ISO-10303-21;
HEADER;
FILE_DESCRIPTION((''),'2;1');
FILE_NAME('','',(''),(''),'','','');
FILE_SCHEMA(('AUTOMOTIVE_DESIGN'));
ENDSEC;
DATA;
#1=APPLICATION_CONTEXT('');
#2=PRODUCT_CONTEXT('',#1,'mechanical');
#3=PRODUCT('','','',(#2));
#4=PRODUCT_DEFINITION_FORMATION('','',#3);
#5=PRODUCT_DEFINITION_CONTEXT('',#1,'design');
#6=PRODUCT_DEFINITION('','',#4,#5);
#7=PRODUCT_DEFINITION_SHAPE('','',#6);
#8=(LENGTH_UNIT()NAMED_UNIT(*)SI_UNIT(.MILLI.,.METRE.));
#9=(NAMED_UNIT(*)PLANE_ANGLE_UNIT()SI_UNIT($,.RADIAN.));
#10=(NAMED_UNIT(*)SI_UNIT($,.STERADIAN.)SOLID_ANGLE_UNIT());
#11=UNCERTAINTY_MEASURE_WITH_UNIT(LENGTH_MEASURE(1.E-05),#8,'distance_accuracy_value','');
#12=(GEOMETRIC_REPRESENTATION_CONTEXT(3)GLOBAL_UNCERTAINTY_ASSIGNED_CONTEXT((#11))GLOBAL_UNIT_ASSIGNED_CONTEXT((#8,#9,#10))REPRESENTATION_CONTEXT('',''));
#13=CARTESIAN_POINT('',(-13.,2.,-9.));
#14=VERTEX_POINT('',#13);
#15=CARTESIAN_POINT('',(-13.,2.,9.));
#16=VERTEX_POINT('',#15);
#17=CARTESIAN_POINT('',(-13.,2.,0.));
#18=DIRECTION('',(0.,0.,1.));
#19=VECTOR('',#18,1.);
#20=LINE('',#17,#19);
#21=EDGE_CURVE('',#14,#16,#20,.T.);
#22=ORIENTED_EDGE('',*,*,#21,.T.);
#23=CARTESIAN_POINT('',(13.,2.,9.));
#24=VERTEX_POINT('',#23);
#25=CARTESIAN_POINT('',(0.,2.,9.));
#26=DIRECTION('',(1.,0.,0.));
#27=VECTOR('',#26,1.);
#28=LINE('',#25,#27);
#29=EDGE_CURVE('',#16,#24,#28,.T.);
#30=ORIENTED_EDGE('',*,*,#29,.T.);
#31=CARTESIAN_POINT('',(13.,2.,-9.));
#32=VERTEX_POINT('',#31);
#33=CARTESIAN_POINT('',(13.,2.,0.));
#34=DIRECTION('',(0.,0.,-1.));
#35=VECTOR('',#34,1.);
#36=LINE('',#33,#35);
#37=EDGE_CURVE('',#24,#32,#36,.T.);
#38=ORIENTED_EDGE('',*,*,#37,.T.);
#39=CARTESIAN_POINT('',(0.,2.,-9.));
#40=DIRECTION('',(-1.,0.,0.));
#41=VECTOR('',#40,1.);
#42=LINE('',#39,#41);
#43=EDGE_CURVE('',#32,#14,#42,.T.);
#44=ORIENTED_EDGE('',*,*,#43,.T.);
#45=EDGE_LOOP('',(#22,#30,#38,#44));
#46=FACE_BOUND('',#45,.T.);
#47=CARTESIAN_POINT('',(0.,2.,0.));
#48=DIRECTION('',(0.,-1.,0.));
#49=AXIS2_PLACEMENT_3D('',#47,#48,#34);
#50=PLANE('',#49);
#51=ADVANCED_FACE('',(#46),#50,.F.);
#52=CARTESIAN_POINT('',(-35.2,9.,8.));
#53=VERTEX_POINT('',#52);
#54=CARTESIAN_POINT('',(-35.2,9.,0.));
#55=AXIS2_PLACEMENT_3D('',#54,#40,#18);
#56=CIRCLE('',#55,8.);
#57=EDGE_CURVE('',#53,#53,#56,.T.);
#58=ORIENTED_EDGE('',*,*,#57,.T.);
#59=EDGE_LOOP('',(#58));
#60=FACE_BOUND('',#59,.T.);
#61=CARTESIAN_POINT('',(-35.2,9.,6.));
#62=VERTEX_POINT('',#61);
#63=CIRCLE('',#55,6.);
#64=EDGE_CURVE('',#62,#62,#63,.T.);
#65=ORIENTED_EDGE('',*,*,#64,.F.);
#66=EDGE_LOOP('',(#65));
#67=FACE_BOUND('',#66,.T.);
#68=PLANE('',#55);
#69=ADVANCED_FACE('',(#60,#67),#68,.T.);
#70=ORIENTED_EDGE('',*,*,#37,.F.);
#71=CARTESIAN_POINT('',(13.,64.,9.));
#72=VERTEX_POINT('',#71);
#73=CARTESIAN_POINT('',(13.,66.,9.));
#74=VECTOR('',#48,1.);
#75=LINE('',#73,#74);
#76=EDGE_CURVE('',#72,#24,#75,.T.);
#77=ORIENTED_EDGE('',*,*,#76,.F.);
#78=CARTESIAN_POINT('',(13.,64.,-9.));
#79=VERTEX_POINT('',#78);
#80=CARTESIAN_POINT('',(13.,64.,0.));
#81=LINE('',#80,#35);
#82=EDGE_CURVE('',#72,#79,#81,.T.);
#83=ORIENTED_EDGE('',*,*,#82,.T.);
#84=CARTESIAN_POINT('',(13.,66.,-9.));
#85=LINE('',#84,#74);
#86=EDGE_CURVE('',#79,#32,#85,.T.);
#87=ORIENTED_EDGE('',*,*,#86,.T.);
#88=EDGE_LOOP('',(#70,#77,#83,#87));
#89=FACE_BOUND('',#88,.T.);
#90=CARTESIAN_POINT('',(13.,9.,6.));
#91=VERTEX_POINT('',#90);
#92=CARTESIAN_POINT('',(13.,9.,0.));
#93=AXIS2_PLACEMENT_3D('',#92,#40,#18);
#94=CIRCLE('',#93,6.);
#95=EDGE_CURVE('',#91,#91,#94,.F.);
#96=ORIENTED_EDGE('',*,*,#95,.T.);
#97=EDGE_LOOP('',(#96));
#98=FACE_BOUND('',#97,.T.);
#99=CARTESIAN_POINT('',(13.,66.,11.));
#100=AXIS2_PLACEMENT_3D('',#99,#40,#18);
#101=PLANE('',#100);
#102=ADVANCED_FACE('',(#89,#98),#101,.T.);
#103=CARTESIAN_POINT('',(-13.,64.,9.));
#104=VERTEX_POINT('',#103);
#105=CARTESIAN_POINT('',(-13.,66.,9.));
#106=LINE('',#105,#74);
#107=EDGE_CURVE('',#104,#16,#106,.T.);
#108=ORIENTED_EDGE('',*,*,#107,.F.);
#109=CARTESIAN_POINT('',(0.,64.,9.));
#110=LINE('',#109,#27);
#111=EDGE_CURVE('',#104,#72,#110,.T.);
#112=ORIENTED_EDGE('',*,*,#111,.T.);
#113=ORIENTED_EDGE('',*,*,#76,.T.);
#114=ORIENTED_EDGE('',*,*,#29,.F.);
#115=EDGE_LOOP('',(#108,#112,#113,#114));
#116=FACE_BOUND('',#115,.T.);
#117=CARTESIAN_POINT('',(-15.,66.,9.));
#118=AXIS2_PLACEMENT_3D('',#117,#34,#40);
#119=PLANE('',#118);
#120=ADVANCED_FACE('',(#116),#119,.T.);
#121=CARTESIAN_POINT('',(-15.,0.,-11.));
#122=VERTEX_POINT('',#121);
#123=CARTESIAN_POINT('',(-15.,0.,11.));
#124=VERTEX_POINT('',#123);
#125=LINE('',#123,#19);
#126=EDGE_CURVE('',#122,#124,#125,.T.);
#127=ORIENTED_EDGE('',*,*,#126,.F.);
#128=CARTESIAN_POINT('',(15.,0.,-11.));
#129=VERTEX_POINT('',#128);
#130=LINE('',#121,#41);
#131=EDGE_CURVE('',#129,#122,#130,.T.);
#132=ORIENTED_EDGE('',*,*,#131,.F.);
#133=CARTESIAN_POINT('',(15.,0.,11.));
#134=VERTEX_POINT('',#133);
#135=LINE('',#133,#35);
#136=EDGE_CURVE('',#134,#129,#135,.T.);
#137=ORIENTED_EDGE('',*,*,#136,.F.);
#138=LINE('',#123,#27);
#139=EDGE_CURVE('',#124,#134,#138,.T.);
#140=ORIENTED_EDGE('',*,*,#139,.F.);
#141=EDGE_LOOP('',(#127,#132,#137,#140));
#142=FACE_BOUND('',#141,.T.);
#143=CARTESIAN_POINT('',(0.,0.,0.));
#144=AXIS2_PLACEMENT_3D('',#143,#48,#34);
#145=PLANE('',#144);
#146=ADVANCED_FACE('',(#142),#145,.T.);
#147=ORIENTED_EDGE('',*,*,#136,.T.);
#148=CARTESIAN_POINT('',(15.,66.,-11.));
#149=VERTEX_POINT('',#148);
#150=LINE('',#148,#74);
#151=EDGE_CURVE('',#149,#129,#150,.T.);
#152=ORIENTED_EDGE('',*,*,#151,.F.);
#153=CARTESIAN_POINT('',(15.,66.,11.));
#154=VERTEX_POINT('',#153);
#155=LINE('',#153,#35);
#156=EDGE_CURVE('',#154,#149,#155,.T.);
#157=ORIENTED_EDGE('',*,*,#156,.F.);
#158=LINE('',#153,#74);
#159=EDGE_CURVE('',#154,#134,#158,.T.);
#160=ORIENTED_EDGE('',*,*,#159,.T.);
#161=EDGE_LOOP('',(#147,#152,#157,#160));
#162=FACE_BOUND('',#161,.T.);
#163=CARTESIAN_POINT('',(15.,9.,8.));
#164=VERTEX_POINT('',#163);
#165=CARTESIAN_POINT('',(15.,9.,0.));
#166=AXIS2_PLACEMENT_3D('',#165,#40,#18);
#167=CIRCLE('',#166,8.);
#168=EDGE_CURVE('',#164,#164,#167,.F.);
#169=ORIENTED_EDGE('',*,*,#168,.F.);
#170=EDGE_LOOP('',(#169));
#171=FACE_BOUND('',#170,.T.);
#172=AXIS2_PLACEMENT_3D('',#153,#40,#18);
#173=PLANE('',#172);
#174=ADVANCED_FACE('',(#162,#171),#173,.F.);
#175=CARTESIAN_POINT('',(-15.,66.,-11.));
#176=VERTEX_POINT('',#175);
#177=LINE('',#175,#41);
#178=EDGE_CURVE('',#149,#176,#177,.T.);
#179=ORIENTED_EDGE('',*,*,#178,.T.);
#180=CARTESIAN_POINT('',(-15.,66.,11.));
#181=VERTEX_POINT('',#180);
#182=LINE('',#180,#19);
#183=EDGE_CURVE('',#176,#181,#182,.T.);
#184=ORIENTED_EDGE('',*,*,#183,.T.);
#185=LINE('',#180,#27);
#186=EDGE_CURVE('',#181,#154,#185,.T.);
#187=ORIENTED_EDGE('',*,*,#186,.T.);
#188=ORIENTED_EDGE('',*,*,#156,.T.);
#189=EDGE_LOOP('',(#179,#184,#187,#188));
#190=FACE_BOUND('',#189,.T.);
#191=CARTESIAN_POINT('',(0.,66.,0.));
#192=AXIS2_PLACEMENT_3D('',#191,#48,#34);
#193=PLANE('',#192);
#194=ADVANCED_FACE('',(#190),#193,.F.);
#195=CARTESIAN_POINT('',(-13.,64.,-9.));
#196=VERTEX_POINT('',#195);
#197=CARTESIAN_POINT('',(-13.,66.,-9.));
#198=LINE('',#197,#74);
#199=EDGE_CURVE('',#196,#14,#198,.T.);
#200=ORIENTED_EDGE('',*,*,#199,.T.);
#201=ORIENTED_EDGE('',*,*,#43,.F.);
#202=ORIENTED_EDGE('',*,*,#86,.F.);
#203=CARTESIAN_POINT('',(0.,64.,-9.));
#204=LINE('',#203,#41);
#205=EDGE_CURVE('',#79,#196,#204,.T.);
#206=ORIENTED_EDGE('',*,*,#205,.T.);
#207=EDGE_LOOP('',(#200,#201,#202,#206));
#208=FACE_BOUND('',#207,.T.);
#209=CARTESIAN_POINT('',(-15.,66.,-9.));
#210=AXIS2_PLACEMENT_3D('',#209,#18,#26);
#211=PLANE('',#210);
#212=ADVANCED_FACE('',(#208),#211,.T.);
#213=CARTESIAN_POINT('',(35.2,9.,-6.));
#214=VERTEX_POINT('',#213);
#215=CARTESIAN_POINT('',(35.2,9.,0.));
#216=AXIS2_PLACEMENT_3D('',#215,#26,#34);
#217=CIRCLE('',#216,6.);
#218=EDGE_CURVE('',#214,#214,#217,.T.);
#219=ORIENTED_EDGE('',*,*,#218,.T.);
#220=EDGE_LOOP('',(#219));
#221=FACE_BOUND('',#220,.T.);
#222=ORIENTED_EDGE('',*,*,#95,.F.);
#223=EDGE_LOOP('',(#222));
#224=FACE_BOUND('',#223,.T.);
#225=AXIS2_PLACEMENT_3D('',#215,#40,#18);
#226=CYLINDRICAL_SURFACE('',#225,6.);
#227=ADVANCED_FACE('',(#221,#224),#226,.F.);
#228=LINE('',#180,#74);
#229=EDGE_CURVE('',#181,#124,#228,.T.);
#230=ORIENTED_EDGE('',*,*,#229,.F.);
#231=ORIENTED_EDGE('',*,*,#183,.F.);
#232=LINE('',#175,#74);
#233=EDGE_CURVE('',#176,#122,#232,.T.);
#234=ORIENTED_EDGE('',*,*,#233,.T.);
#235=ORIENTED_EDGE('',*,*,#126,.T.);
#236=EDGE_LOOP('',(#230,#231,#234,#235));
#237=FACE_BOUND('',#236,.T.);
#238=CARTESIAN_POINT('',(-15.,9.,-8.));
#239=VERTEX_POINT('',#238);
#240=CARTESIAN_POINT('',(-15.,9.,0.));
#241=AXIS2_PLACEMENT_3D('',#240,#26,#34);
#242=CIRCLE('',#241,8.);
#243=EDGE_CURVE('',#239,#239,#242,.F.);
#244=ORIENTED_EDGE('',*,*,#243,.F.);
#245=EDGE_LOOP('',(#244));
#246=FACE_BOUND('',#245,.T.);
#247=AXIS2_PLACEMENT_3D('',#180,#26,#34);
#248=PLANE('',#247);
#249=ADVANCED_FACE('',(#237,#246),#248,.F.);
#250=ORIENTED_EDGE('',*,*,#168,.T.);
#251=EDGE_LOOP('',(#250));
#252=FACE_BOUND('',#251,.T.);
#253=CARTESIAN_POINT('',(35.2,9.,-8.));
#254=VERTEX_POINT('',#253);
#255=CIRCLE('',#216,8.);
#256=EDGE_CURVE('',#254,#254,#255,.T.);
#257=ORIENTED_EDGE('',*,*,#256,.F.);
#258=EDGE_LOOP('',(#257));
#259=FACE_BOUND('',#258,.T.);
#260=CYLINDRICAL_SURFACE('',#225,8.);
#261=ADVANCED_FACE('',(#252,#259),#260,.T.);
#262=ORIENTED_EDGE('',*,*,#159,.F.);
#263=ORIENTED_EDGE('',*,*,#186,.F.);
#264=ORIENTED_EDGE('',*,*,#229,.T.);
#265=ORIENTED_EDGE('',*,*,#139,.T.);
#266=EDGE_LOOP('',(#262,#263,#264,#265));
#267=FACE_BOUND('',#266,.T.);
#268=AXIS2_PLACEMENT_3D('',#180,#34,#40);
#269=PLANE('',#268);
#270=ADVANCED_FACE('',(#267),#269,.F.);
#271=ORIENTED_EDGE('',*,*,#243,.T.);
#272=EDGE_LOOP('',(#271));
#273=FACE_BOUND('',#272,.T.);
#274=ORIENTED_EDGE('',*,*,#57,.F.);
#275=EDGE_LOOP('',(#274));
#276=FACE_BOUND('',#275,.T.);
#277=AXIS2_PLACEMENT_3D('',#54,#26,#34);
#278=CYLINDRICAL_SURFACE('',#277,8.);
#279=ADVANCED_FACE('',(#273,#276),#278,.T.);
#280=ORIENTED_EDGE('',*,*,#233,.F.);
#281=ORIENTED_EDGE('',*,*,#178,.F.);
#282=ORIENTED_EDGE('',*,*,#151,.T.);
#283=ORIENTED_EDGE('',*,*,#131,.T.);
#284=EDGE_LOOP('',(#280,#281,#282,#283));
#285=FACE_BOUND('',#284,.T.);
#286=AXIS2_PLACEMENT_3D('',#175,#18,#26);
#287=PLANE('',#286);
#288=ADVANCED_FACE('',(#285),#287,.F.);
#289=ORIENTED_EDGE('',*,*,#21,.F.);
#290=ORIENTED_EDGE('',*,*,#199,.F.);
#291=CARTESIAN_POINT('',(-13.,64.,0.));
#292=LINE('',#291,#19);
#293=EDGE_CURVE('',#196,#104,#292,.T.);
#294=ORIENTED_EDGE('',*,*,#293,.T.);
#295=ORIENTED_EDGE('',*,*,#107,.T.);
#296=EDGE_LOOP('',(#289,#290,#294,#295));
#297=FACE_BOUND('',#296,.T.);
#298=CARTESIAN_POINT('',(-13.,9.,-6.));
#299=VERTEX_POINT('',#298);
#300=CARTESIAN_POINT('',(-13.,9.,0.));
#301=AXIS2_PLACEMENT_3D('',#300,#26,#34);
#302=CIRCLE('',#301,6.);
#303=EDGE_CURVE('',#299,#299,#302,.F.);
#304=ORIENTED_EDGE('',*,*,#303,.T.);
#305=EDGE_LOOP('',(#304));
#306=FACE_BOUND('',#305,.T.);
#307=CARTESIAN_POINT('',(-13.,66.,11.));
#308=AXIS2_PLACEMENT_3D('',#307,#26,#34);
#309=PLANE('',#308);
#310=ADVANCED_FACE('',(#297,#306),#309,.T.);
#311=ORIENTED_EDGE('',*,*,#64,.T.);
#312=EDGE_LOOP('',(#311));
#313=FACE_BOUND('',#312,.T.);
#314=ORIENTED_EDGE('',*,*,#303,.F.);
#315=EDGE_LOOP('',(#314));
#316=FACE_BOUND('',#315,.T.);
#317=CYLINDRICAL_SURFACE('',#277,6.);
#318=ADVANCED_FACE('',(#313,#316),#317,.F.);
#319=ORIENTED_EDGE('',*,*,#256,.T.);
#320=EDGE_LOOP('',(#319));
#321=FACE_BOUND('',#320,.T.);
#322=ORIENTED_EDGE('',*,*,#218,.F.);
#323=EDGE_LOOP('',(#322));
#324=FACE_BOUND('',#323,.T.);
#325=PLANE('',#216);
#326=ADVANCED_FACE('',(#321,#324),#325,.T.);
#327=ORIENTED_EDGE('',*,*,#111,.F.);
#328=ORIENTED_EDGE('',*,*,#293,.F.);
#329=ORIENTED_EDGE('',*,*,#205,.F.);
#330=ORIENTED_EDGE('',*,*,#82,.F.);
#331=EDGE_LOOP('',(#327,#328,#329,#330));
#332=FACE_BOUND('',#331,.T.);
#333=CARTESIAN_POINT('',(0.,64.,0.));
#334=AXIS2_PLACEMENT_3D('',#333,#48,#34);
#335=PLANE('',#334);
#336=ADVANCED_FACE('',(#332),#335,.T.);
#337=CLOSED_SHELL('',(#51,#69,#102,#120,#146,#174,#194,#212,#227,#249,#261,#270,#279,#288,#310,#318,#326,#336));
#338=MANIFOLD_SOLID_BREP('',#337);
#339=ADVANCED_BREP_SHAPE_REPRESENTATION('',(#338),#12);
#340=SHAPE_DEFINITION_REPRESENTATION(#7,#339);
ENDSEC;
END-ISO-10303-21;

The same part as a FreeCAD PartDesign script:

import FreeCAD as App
import Part
import Sketcher


def faces_at(feature, points):
    """Names of the faces that lie closest to the given points."""
    faces = feature.Shape.Faces
    near = lambda p: min(range(len(faces)), key=lambda i: faces[i].distToShape(Part.Vertex(*p))[0])
    return sorted({f"Face{near(p) + 1}" for p in points})

doc = App.newDocument("Part")
body = doc.addObject("PartDesign::Body", "Body")

# Sketch on XZ plane
sketch1 = doc.addObject("Sketcher::SketchObject", "Sketch")
body.addObject(sketch1)
sketch1.AttachmentSupport = (doc.XZ_Plane, [""])
sketch1.MapMode = "FlatFace"
sketch1.addGeometry([
    Part.LineSegment(App.Vector(-15, -11, 0), App.Vector(-15, 11, 0)),
    Part.LineSegment(App.Vector(-15, 11, 0), App.Vector(15, 11, 0)),
    Part.LineSegment(App.Vector(15, 11, 0), App.Vector(15, -11, 0)),
    Part.LineSegment(App.Vector(15, -11, 0), App.Vector(-15, -11, 0)),
], False)
sketch1.addConstraint([
    Sketcher.Constraint("Coincident", 0, 2, 1, 1),
    Sketcher.Constraint("Coincident", 1, 2, 2, 1),
    Sketcher.Constraint("Coincident", 2, 2, 3, 1),
    Sketcher.Constraint("Coincident", 3, 2, 0, 1),
    Sketcher.Constraint("Vertical", 0),
    Sketcher.Constraint("Horizontal", 1),
    Sketcher.Constraint("Vertical", 2),
    Sketcher.Constraint("Horizontal", 3),
    Sketcher.Constraint("Symmetric", 0, 2, 2, 2, -1, 1),
    Sketcher.Constraint("DistanceX", 1, 1, 1, 2, 30.0),
    Sketcher.Constraint("DistanceY", 0, 1, 0, 2, 22.0),
])
pad1 = doc.addObject("PartDesign::Pad", "Pad")
body.addObject(pad1)
pad1.Profile = sketch1
pad1.Length = 66
pad1.Reversed = True

# Sketch on YZ plane
sketch2 = doc.addObject("Sketcher::SketchObject", "Sketch001")
body.addObject(sketch2)
sketch2.AttachmentSupport = (doc.YZ_Plane, [""])
sketch2.MapMode = "FlatFace"
sketch2.AttachmentOffset = App.Placement(App.Vector(0, 0, -15), App.Rotation())
sketch2.addGeometry(Part.Circle(App.Vector(9, 0, 0), App.Vector(0, 0, 1), 8), False)
sketch2.addConstraint([
    Sketcher.Constraint("PointOnObject", 0, 3, -1),
    Sketcher.Constraint("Diameter", 0, 16.0),
    Sketcher.Constraint("DistanceX", -1, 1, 0, 3, 9.0),
])
pad2 = doc.addObject("PartDesign::Pad", "Pad001")
body.addObject(pad2)
pad2.Profile = sketch2
pad2.Length = 20.2
pad2.Reversed = True

# Sketch on YZ plane
sketch3 = doc.addObject("Sketcher::SketchObject", "Sketch002")
body.addObject(sketch3)
sketch3.AttachmentSupport = (doc.YZ_Plane, [""])
sketch3.MapMode = "FlatFace"
sketch3.AttachmentOffset = App.Placement(App.Vector(0, 0, 35.2), App.Rotation())
sketch3.addGeometry(Part.Circle(App.Vector(9, 0, 0), App.Vector(0, 0, 1), 8), False)
sketch3.addConstraint([
    Sketcher.Constraint("PointOnObject", 0, 3, -1),
    Sketcher.Constraint("Diameter", 0, 16.0),
    Sketcher.Constraint("DistanceX", -1, 1, 0, 3, 9.0),
])
pad3 = doc.addObject("PartDesign::Pad", "Pad002")
body.addObject(pad3)
pad3.Profile = sketch3
pad3.Length = 20.2
pad3.Reversed = True
doc.recompute()

thickness = doc.addObject("PartDesign::Thickness", "Thickness")
body.addObject(thickness)
thickness.Base = (pad3, faces_at(pad3, [(-35.2, 9, 0), (35.2, 9, 0)]))
thickness.Value = 2
thickness.Reversed = True
thickness.Join = "Intersection"

doc.recompute()
